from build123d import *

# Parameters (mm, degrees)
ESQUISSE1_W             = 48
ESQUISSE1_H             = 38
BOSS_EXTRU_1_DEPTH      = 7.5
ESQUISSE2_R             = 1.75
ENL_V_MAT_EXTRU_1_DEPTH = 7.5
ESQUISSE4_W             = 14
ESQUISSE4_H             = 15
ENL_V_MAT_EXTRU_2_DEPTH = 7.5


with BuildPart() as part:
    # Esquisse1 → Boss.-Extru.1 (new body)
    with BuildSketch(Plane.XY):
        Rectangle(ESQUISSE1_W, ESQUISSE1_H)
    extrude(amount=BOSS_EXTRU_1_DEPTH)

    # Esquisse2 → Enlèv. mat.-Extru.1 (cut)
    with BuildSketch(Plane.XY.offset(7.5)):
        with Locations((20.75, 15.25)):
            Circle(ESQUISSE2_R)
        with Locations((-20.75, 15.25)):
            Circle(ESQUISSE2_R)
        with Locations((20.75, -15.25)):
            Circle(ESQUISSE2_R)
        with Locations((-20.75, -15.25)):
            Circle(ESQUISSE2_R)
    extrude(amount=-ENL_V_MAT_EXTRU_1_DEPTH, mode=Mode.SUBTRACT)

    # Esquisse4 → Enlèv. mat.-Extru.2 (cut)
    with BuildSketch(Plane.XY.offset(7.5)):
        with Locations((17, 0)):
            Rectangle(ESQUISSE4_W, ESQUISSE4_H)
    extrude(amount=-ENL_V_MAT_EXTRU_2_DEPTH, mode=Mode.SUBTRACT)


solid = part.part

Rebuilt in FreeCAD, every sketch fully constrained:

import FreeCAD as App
import Part
import Sketcher

doc = App.newDocument("Part")
params = doc.addObject("Spreadsheet::Sheet", "Params")
for row, (alias, value) in enumerate([
    ("sketch1_width", "48 mm"),
    ("sketch1_height", "38 mm"),
    ("pad1_length", "7.5 mm"),
    ("sketch2_diameter", "3.5 mm"),
    ("pocket1_length", "7.5 mm"),
    ("sketch3_width", "14 mm"),
    ("sketch3_height", "15 mm"),
    ("pocket2_length", "7.5 mm"),
], start=1):
    params.set(f"A{row}", alias)
    params.set(f"B{row}", "=" + value)
    params.setAlias(f"B{row}", alias)

body = doc.addObject("PartDesign::Body", "Body")

sketch1 = doc.addObject("Sketcher::SketchObject", "Sketch")
body.addObject(sketch1)
sketch1.AttachmentSupport = (doc.XY_Plane, [""])
sketch1.MapMode = "FlatFace"
sketch1.addGeometry([
    Part.LineSegment(App.Vector(-24, 19, 0), App.Vector(-24, -19, 0)),
    Part.LineSegment(App.Vector(-24, -19, 0), App.Vector(24, -19, 0)),
    Part.LineSegment(App.Vector(24, -19, 0), App.Vector(24, 19, 0)),
    Part.LineSegment(App.Vector(24, 19, 0), App.Vector(-24, 19, 0)),
], False)
sketch1.addConstraint([
    Sketcher.Constraint("Coincident", 0, 2, 1, 1),
    Sketcher.Constraint("Coincident", 1, 2, 2, 1),
    Sketcher.Constraint("Coincident", 2, 2, 3, 1),
    Sketcher.Constraint("Coincident", 3, 2, 0, 1),
    Sketcher.Constraint("Vertical", 0),
    Sketcher.Constraint("Horizontal", 1),
    Sketcher.Constraint("Vertical", 2),
    Sketcher.Constraint("Horizontal", 3),
    Sketcher.Constraint("Symmetric", 0, 2, 2, 2, -1, 1),
    Sketcher.Constraint("DistanceX", 1, 1, 1, 2, 48.0),
    Sketcher.Constraint("DistanceY", 0, 2, 0, 1, 38.0),
])
sketch1.setExpression("Constraints[9]", "Params.sketch1_width")
sketch1.setExpression("Constraints[10]", "Params.sketch1_height")
pad1 = doc.addObject("PartDesign::Pad", "Pad")
body.addObject(pad1)
pad1.Profile = sketch1
pad1.setExpression("Length", "Params.pad1_length")

sketch2 = doc.addObject("Sketcher::SketchObject", "Sketch001")
body.addObject(sketch2)
sketch2.AttachmentSupport = (doc.XY_Plane, [""])
sketch2.MapMode = "FlatFace"
sketch2.AttachmentOffset = App.Placement(App.Vector(0, 0, 7.5), App.Rotation())
sketch2.addGeometry([
    Part.Circle(App.Vector(20.8, 15.2, 0), App.Vector(0, 0, 1), 1.8),
    Part.Circle(App.Vector(-20.8, 15.2, 0), App.Vector(0, 0, 1), 1.8),
    Part.Circle(App.Vector(20.8, -15.2, 0), App.Vector(0, 0, 1), 1.8),
    Part.Circle(App.Vector(-20.8, -15.2, 0), App.Vector(0, 0, 1), 1.8),
], False)
sketch2.addConstraint([
    Sketcher.Constraint("Equal", 0, 1),
    Sketcher.Constraint("Equal", 1, 2),
    Sketcher.Constraint("Equal", 2, 3),
    Sketcher.Constraint("Symmetric", 1, 3, 2, 3, -1, 1),
    Sketcher.Constraint("Symmetric", 0, 3, 3, 3, -1, 1),
    Sketcher.Constraint("Symmetric", 0, 3, 1, 3, -2),
    Sketcher.Constraint("Diameter", 0, 3.5),
    Sketcher.Constraint("DistanceX", 1, 3, 0, 3, 41.5),
    Sketcher.Constraint("DistanceY", 2, 3, 0, 3, 30.5),
])
sketch2.setExpression("Constraints[6]", "Params.sketch2_diameter")
pocket1 = doc.addObject("PartDesign::Pocket", "Pocket")
body.addObject(pocket1)
pocket1.Profile = sketch2
pocket1.setExpression("Length", "Params.pocket1_length")

sketch3 = doc.addObject("Sketcher::SketchObject", "Sketch002")
body.addObject(sketch3)
sketch3.AttachmentSupport = (doc.XY_Plane, [""])
sketch3.MapMode = "FlatFace"
sketch3.AttachmentOffset = App.Placement(App.Vector(0, 0, 7.5), App.Rotation())
sketch3.addGeometry([
    Part.LineSegment(App.Vector(10, 8, 0), App.Vector(10, -8, 0)),
    Part.LineSegment(App.Vector(10, -8, 0), App.Vector(24, -8, 0)),
    Part.LineSegment(App.Vector(24, -8, 0), App.Vector(24, 8, 0)),
    Part.LineSegment(App.Vector(24, 8, 0), App.Vector(10, 8, 0)),
], False)
sketch3.addConstraint([
    Sketcher.Constraint("Coincident", 0, 2, 1, 1),
    Sketcher.Constraint("Coincident", 1, 2, 2, 1),
    Sketcher.Constraint("Coincident", 2, 2, 3, 1),
    Sketcher.Constraint("Coincident", 3, 2, 0, 1),
    Sketcher.Constraint("Vertical", 0),
    Sketcher.Constraint("Horizontal", 1),
    Sketcher.Constraint("Vertical", 2),
    Sketcher.Constraint("Horizontal", 3),
    Sketcher.Constraint("DistanceX", 1, 1, 1, 2, 14.0),
    Sketcher.Constraint("DistanceY", 0, 2, 0, 1, 15.0),
    Sketcher.Constraint("DistanceX", -1, 1, 0, 2, 10.0),
    Sketcher.Constraint("DistanceY", 0, 2, -1, 1, 7.5),
])
sketch3.setExpression("Constraints[8]", "Params.sketch3_width")
sketch3.setExpression("Constraints[9]", "Params.sketch3_height")
pocket2 = doc.addObject("PartDesign::Pocket", "Pocket001")
body.addObject(pocket2)
pocket2.Profile = sketch3
pocket2.setExpression("Length", "Params.pocket2_length")

doc.recompute()
